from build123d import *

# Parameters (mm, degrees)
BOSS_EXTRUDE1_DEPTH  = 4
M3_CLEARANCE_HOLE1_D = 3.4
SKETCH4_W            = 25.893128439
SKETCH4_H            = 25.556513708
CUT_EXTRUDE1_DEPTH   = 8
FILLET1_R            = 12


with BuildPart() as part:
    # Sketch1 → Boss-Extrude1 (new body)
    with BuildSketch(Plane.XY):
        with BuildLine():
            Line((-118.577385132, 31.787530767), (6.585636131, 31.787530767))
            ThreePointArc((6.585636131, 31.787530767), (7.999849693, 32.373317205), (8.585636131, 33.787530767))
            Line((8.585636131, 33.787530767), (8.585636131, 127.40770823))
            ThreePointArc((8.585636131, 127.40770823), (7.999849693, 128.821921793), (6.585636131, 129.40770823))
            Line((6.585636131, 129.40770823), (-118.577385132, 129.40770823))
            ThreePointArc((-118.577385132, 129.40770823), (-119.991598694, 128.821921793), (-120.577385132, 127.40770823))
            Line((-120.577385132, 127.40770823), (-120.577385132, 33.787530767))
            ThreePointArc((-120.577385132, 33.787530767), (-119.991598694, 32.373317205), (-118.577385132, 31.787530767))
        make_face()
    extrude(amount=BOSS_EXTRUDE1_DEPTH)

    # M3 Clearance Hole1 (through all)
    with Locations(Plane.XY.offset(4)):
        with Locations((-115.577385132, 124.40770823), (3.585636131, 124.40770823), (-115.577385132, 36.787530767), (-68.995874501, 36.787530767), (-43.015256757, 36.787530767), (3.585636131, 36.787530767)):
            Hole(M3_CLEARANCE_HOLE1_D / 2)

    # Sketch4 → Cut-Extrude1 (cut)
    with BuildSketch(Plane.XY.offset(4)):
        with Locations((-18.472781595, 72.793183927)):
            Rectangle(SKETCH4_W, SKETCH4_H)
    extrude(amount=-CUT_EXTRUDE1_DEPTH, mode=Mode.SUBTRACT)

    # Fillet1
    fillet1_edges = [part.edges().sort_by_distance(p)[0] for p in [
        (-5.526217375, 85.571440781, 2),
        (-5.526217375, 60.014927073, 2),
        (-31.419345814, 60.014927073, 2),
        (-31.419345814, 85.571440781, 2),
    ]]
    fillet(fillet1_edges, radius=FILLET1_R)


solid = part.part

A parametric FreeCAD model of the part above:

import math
import FreeCAD as App
import Part
import Sketcher
Q = App.Units.Quantity


def edges_at(feature, points):
    """Names of the edges that pass closest to the given points."""
    edges = feature.Shape.Edges
    near = lambda p: min(range(len(edges)), key=lambda i: edges[i].distToShape(Part.Vertex(*p))[0])
    return sorted({f"Edge{near(p) + 1}" for p in points})

doc = App.newDocument("Part")
params = doc.addObject("Spreadsheet::Sheet", "Params")
for row, (alias, value) in enumerate([
    ("sketch1_radius", "2 mm"),
    ("pad1_length", "4 mm"),
    ("sketch2_diameter", "3.4 mm"),
    ("hole_diameter", "3.4 mm"),
    ("pocket1_length", "8 mm"),
    ("fillet_radius", "12 mm"),
], start=1):
    params.set(f"A{row}", alias)
    params.set(f"B{row}", "=" + value)
    params.setAlias(f"B{row}", alias)

body = doc.addObject("PartDesign::Body", "Body")

sketch1 = doc.addObject("Sketcher::SketchObject", "Sketch")
body.addObject(sketch1)
sketch1.AttachmentSupport = (doc.XY_Plane, [""])
sketch1.MapMode = "FlatFace"
sketch1.addGeometry([
    Part.LineSegment(App.Vector(-118.577385, 31.787531, 0), App.Vector(6.585636, 31.787531, 0)),
    Part.ArcOfCircle(Part.Circle(App.Vector(6.585636, 33.787531, 0), App.Vector(0, 0, 1), 2), math.radians(-90), math.radians(0)),
    Part.LineSegment(App.Vector(8.585636, 33.787531, 0), App.Vector(8.585636, 127.407708, 0)),
    Part.ArcOfCircle(Part.Circle(App.Vector(6.585636, 127.407708, 0), App.Vector(0, 0, 1), 2), math.radians(0), math.radians(90)),
    Part.LineSegment(App.Vector(6.585636, 129.407708, 0), App.Vector(-118.577385, 129.407708, 0)),
    Part.ArcOfCircle(Part.Circle(App.Vector(-118.577385, 127.407708, 0), App.Vector(0, 0, 1), 2), math.radians(90), math.radians(180)),
    Part.LineSegment(App.Vector(-120.577385, 127.407708, 0), App.Vector(-120.577385, 33.787531, 0)),
    Part.ArcOfCircle(Part.Circle(App.Vector(-118.577385, 33.787531, 0), App.Vector(0, 0, 1), 2), math.radians(-180), math.radians(-90)),
], False)
sketch1.addConstraint([
    Sketcher.Constraint("Tangent", 0, 2, 1, 1),
    Sketcher.Constraint("Tangent", 1, 2, 2, 1),
    Sketcher.Constraint("Tangent", 2, 2, 3, 1),
    Sketcher.Constraint("Tangent", 3, 2, 4, 1),
    Sketcher.Constraint("Tangent", 4, 2, 5, 1),
    Sketcher.Constraint("Tangent", 5, 2, 6, 1),
    Sketcher.Constraint("Tangent", 6, 2, 7, 1),
    Sketcher.Constraint("Tangent", 7, 2, 0, 1),
    Sketcher.Constraint("Horizontal", 0),
    Sketcher.Constraint("Vertical", 2),
    Sketcher.Constraint("Horizontal", 4),
    Sketcher.Constraint("Vertical", 6),
    Sketcher.Constraint("Equal", 1, 3),
    Sketcher.Constraint("Equal", 3, 5),
    Sketcher.Constraint("Equal", 5, 7),
    Sketcher.Constraint("Radius", 1, Q("2 mm")),
    Sketcher.Constraint("DistanceX", 0, 1, 0, 2, Q("125.163021 mm")),
    Sketcher.Constraint("DistanceY", 2, 1, 2, 2, Q("93.620177 mm")),
    Sketcher.Constraint("DistanceY", -1, 1, 1, 3, Q("33.787531 mm")),
    Sketcher.Constraint("DistanceX", -1, 1, 1, 3, Q("6.585636 mm")),
])
sketch1.setExpression("Constraints[15]", "Params.sketch1_radius")
pad1 = doc.addObject("PartDesign::Pad", "Pad")
body.addObject(pad1)
pad1.Profile = sketch1
pad1.setExpression("Length", "Params.pad1_length")

sketch2 = doc.addObject("Sketcher::SketchObject", "Sketch001")
body.addObject(sketch2)
sketch2.AttachmentSupport = (doc.XY_Plane, [""])
sketch2.MapMode = "FlatFace"
sketch2.AttachmentOffset = App.Placement(App.Vector(0, 0, 4), App.Rotation())
sketch2.addGeometry([
    Part.Circle(App.Vector(-115.577385, 124.407708, 0), App.Vector(0, 0, 1), 1.7),
    Part.Circle(App.Vector(3.585636, 124.407708, 0), App.Vector(0, 0, 1), 1.7),
    Part.Circle(App.Vector(-115.577385, 36.787531, 0), App.Vector(0, 0, 1), 1.7),
    Part.Circle(App.Vector(-68.995875, 36.787531, 0), App.Vector(0, 0, 1), 1.7),
    Part.Circle(App.Vector(-43.015257, 36.787531, 0), App.Vector(0, 0, 1), 1.7),
    Part.Circle(App.Vector(3.585636, 36.787531, 0), App.Vector(0, 0, 1), 1.7),
], False)
sketch2.addConstraint([
    Sketcher.Constraint("Equal", 0, 1),
    Sketcher.Constraint("Equal", 1, 2),
    Sketcher.Constraint("Equal", 2, 3),
    Sketcher.Constraint("Equal", 3, 4),
    Sketcher.Constraint("Equal", 4, 5),
    Sketcher.Constraint("Horizontal", 0, 3, 1, 3),
    Sketcher.Constraint("Horizontal", 2, 3, 3, 3),
    Sketcher.Constraint("Horizontal", 3, 3, 4, 3),
    Sketcher.Constraint("Horizontal", 4, 3, 5, 3),
    Sketcher.Constraint("Vertical", 0, 3, 2, 3),
    Sketcher.Constraint("Vertical", 1, 3, 5, 3),
    Sketcher.Constraint("Diameter", 0, Q("3.4 mm")),
    Sketcher.Constraint("DistanceY", -1, 1, 0, 3, Q("124.407708 mm")),
    Sketcher.Constraint("DistanceY", -1, 1, 2, 3, Q("36.787531 mm")),
    Sketcher.Constraint("DistanceX", 0, 3, 1, 3, Q("119.163021 mm")),
    Sketcher.Constraint("DistanceX", 2, 3, 3, 3, Q("46.581511 mm")),
    Sketcher.Constraint("DistanceX", 2, 3, 4, 3, Q("72.562128 mm")),
    Sketcher.Constraint("DistanceX", 0, 3, -1, 1, Q("115.577385 mm")),
])
sketch2.setExpression("Constraints[11]", "Params.sketch2_diameter")
doc.recompute()
hole = doc.addObject("PartDesign::Hole", "Hole")
body.addObject(hole)
hole.Profile = sketch2
hole.ThreadType = "None"
hole.setExpression("Diameter", "Params.hole_diameter")
hole.DepthType = "ThroughAll"

sketch3 = doc.addObject("Sketcher::SketchObject", "Sketch002")
body.addObject(sketch3)
sketch3.AttachmentSupport = (doc.XY_Plane, [""])
sketch3.MapMode = "FlatFace"
sketch3.AttachmentOffset = App.Placement(App.Vector(0, 0, 4), App.Rotation())
sketch3.addGeometry([
    Part.LineSegment(App.Vector(-31.419346, 85.571441, 0), App.Vector(-31.419346, 60.014927, 0)),
    Part.LineSegment(App.Vector(-31.419346, 60.014927, 0), App.Vector(-5.526217, 60.014927, 0)),
    Part.LineSegment(App.Vector(-5.526217, 60.014927, 0), App.Vector(-5.526217, 85.571441, 0)),
    Part.LineSegment(App.Vector(-5.526217, 85.571441, 0), App.Vector(-31.419346, 85.571441, 0)),
], False)
sketch3.addConstraint([
    Sketcher.Constraint("Coincident", 0, 2, 1, 1),
    Sketcher.Constraint("Coincident", 1, 2, 2, 1),
    Sketcher.Constraint("Coincident", 2, 2, 3, 1),
    Sketcher.Constraint("Coincident", 3, 2, 0, 1),
    Sketcher.Constraint("Vertical", 0),
    Sketcher.Constraint("Horizontal", 1),
    Sketcher.Constraint("Vertical", 2),
    Sketcher.Constraint("Horizontal", 3),
    Sketcher.Constraint("DistanceX", 1, 1, 1, 2, Q("25.893128 mm")),
    Sketcher.Constraint("DistanceY", 0, 2, 0, 1, Q("25.556514 mm")),
    Sketcher.Constraint("DistanceY", -1, 1, 2, 2, Q("85.571441 mm")),
    Sketcher.Constraint("DistanceX", 0, 2, -1, 1, Q("31.419346 mm")),
])
pocket1 = doc.addObject("PartDesign::Pocket", "Pocket")
body.addObject(pocket1)
pocket1.Profile = sketch3
pocket1.setExpression("Length", "Params.pocket1_length")
doc.recompute()

fillet = doc.addObject("PartDesign::Fillet", "Fillet")
body.addObject(fillet)
fillet.Base = (pocket1, edges_at(pocket1, [
    (-5.526, 85.571, 2),
    (-5.526, 60.015, 2),
    (-31.419, 60.015, 2),
    (-31.419, 85.571, 2),
]))
fillet.setExpression("Radius", "Params.fillet_radius")

doc.recompute()
